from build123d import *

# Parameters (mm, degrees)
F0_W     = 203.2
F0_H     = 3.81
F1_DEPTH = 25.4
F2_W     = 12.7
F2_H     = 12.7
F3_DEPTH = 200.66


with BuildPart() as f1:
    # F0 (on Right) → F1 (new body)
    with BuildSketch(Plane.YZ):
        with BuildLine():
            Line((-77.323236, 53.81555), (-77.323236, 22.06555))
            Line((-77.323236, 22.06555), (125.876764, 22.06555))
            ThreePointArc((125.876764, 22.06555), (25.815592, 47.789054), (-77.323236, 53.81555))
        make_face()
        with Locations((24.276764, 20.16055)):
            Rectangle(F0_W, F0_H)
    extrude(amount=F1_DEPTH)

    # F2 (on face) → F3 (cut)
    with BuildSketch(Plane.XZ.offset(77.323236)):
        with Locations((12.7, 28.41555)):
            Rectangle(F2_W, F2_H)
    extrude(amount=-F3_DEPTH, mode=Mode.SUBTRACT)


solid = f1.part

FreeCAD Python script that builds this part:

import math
import FreeCAD as App
import Part
import Sketcher
Q = App.Units.Quantity

doc = App.newDocument("Part")
body = doc.addObject("PartDesign::Body", "Body")

# Sketch on YZ plane
sketch1 = doc.addObject("Sketcher::SketchObject", "Sketch")
body.addObject(sketch1)
sketch1.AttachmentSupport = (doc.YZ_Plane, [""])
sketch1.MapMode = "FlatFace"
sketch1.addGeometry(Part.LineSegment(App.Vector(-77.323236, 53.81555, 0), App.Vector(-77.323236, 18.25555, 0)), False)
sketch1.addGeometry(Part.LineSegment(App.Vector(-77.323236, 18.25555, 0), App.Vector(125.876764, 18.25555, 0)), False)
sketch1.addGeometry(Part.LineSegment(App.Vector(125.876764, 18.25555, 0), App.Vector(125.876764, 22.06555, 0)), False)
sketch1.addGeometry(Part.ArcOfCircle(Part.Circle(App.Vector(-56.839356, -481.202616, 0), App.Vector(0, 0, 1), 535.410148), math.radians(70.046108), math.radians(92.192574)), False)
sketch1.addConstraint(Sketcher.Constraint("Coincident", 0, 2, 1, 1))
sketch1.addConstraint(Sketcher.Constraint("Coincident", 1, 2, 2, 1))
sketch1.addConstraint(Sketcher.Constraint("Coincident", 2, 2, 3, 1))
sketch1.addConstraint(Sketcher.Constraint("Coincident", 3, 2, 0, 1))
sketch1.addConstraint(Sketcher.Constraint("Vertical", 0))
sketch1.addConstraint(Sketcher.Constraint("Horizontal", 1))
sketch1.addConstraint(Sketcher.Constraint("Vertical", 2))
sketch1.addConstraint(Sketcher.Constraint("DistanceX", 1, 1, 1, 2, Q("8 in")))
sketch1.addConstraint(Sketcher.Constraint("DistanceY", 0, 2, 0, 1, Q("1.4 in")))
sketch1.addConstraint(Sketcher.Constraint("DistanceY", 2, 1, 2, 2, Q("0.15 in")))
sketch1.addConstraint(Sketcher.Constraint("Radius", 3, Q("535.410148 mm")))
sketch1.addConstraint(Sketcher.Constraint("DistanceY", -1, 1, 0, 2, Q("18.25555 mm")))
sketch1.addConstraint(Sketcher.Constraint("DistanceX", 3, 3, -1, 1, Q("56.839356 mm")))
pad1 = doc.addObject("PartDesign::Pad", "Pad")
body.addObject(pad1)
pad1.Profile = sketch1
pad1.Length = Q("1 in")

# Sketch on XZ plane
sketch2 = doc.addObject("Sketcher::SketchObject", "Sketch001")
body.addObject(sketch2)
sketch2.AttachmentSupport = (doc.XZ_Plane, [""])
sketch2.MapMode = "FlatFace"
sketch2.AttachmentOffset = App.Placement(App.Vector(0, 0, 77.323236), App.Rotation())
sketch2.addGeometry(Part.LineSegment(App.Vector(6.35, 34.76555, 0), App.Vector(6.35, 22.06555, 0)), False)
sketch2.addGeometry(Part.LineSegment(App.Vector(6.35, 22.06555, 0), App.Vector(19.05, 22.06555, 0)), False)
sketch2.addGeometry(Part.LineSegment(App.Vector(19.05, 22.06555, 0), App.Vector(19.05, 34.76555, 0)), False)
sketch2.addGeometry(Part.LineSegment(App.Vector(19.05, 34.76555, 0), App.Vector(6.35, 34.76555, 0)), False)
sketch2.addConstraint(Sketcher.Constraint("Coincident", 0, 2, 1, 1))
sketch2.addConstraint(Sketcher.Constraint("Coincident", 1, 2, 2, 1))
sketch2.addConstraint(Sketcher.Constraint("Coincident", 2, 2, 3, 1))
sketch2.addConstraint(Sketcher.Constraint("Coincident", 3, 2, 0, 1))
sketch2.addConstraint(Sketcher.Constraint("Vertical", 0))
sketch2.addConstraint(Sketcher.Constraint("Horizontal", 1))
sketch2.addConstraint(Sketcher.Constraint("Vertical", 2))
sketch2.addConstraint(Sketcher.Constraint("Horizontal", 3))
sketch2.addConstraint(Sketcher.Constraint("Equal", 3, 0))
sketch2.addConstraint(Sketcher.Constraint("DistanceX", 1, 1, 1, 2, Q("0.5 in")))
sketch2.addConstraint(Sketcher.Constraint("DistanceX", -1, 1, 0, 2, Q("0.25 in")))
sketch2.addConstraint(Sketcher.Constraint("DistanceY", -1, 1, 0, 2, Q("22.06555 mm")))
pocket1 = doc.addObject("PartDesign::Pocket", "Pocket")
body.addObject(pocket1)
pocket1.Profile = sketch2
pocket1.Length = Q("7.9 in")

doc.recompute()
